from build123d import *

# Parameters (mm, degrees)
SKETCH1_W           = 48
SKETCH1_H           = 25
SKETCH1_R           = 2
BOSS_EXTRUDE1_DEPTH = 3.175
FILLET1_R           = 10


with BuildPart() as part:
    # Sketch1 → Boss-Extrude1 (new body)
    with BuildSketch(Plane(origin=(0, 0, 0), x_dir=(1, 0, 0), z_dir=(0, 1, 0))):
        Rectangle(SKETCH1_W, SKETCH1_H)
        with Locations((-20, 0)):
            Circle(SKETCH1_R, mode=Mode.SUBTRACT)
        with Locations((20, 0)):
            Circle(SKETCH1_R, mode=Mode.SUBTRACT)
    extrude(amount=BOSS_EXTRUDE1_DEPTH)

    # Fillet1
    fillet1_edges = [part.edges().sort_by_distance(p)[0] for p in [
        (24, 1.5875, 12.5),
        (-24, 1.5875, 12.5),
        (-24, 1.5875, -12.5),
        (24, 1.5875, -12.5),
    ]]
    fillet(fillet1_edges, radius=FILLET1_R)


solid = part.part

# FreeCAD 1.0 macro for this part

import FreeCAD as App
import Part
import Sketcher
Q = App.Units.Quantity


def edges_at(feature, points):
    """Names of the edges that pass closest to the given points."""
    edges = feature.Shape.Edges
    near = lambda p: min(range(len(edges)), key=lambda i: edges[i].distToShape(Part.Vertex(*p))[0])
    return sorted({f"Edge{near(p) + 1}" for p in points})

doc = App.newDocument("Part")
body = doc.addObject("PartDesign::Body", "Body")

# Sketch on XZ plane
sketch1 = body.newObject("Sketcher::SketchObject", "Sketch")
sketch1.AttachmentSupport = (doc.getObject("XZ_Plane"), [""])
sketch1.MapMode = "FlatFace"
sketch1.addGeometry(Part.LineSegment(App.Vector(-24, -12.5, 0), App.Vector(-24, 12.5, 0)), False)
sketch1.addGeometry(Part.LineSegment(App.Vector(-24, 12.5, 0), App.Vector(24, 12.5, 0)), False)
sketch1.addGeometry(Part.LineSegment(App.Vector(24, 12.5, 0), App.Vector(24, -12.5, 0)), False)
sketch1.addGeometry(Part.LineSegment(App.Vector(24, -12.5, 0), App.Vector(-24, -12.5, 0)), False)
sketch1.addGeometry(Part.Circle(App.Vector(-20, 0, 0), App.Vector(0, 0, 1), 2), False)
sketch1.addGeometry(Part.Circle(App.Vector(20, 0, 0), App.Vector(0, 0, 1), 2), False)
sketch1.addConstraint(Sketcher.Constraint("Coincident", 0, 2, 1, 1))
sketch1.addConstraint(Sketcher.Constraint("Coincident", 1, 2, 2, 1))
sketch1.addConstraint(Sketcher.Constraint("Coincident", 2, 2, 3, 1))
sketch1.addConstraint(Sketcher.Constraint("Coincident", 3, 2, 0, 1))
sketch1.addConstraint(Sketcher.Constraint("Vertical", 0))
sketch1.addConstraint(Sketcher.Constraint("Horizontal", 1))
sketch1.addConstraint(Sketcher.Constraint("Vertical", 2))
sketch1.addConstraint(Sketcher.Constraint("Horizontal", 3))
sketch1.addConstraint(Sketcher.Constraint("Equal", 4, 5))
sketch1.addConstraint(Sketcher.Constraint("Symmetric", 4, 3, 5, 3, -1, 1))
sketch1.addConstraint(Sketcher.Constraint("Symmetric", 0, 2, 2, 2, -1, 1))
sketch1.addConstraint(Sketcher.Constraint("PointOnObject", 4, 3, -1))
sketch1.addConstraint(Sketcher.Constraint("Diameter", 4, Q("4 mm")))
sketch1.addConstraint(Sketcher.Constraint("DistanceX", 1, 1, 1, 2, Q("48 mm")))
sketch1.addConstraint(Sketcher.Constraint("DistanceY", 0, 1, 0, 2, Q("25 mm")))
sketch1.addConstraint(Sketcher.Constraint("DistanceX", 4, 3, -1, 1, Q("20 mm")))
pad1 = body.newObject("PartDesign::Pad", "Pad")
pad1.Profile = sketch1
pad1.Length = 3.175
pad1.Reversed = True
doc.recompute()

fillet = body.newObject("PartDesign::Fillet", "Fillet")
fillet.Base = (pad1, edges_at(pad1, [
    (24, 1.587, 12.5),
    (-24, 1.587, 12.5),
    (-24, 1.587, -12.5),
    (24, 1.587, -12.5),
]))
fillet.Radius = 10

doc.recompute()
